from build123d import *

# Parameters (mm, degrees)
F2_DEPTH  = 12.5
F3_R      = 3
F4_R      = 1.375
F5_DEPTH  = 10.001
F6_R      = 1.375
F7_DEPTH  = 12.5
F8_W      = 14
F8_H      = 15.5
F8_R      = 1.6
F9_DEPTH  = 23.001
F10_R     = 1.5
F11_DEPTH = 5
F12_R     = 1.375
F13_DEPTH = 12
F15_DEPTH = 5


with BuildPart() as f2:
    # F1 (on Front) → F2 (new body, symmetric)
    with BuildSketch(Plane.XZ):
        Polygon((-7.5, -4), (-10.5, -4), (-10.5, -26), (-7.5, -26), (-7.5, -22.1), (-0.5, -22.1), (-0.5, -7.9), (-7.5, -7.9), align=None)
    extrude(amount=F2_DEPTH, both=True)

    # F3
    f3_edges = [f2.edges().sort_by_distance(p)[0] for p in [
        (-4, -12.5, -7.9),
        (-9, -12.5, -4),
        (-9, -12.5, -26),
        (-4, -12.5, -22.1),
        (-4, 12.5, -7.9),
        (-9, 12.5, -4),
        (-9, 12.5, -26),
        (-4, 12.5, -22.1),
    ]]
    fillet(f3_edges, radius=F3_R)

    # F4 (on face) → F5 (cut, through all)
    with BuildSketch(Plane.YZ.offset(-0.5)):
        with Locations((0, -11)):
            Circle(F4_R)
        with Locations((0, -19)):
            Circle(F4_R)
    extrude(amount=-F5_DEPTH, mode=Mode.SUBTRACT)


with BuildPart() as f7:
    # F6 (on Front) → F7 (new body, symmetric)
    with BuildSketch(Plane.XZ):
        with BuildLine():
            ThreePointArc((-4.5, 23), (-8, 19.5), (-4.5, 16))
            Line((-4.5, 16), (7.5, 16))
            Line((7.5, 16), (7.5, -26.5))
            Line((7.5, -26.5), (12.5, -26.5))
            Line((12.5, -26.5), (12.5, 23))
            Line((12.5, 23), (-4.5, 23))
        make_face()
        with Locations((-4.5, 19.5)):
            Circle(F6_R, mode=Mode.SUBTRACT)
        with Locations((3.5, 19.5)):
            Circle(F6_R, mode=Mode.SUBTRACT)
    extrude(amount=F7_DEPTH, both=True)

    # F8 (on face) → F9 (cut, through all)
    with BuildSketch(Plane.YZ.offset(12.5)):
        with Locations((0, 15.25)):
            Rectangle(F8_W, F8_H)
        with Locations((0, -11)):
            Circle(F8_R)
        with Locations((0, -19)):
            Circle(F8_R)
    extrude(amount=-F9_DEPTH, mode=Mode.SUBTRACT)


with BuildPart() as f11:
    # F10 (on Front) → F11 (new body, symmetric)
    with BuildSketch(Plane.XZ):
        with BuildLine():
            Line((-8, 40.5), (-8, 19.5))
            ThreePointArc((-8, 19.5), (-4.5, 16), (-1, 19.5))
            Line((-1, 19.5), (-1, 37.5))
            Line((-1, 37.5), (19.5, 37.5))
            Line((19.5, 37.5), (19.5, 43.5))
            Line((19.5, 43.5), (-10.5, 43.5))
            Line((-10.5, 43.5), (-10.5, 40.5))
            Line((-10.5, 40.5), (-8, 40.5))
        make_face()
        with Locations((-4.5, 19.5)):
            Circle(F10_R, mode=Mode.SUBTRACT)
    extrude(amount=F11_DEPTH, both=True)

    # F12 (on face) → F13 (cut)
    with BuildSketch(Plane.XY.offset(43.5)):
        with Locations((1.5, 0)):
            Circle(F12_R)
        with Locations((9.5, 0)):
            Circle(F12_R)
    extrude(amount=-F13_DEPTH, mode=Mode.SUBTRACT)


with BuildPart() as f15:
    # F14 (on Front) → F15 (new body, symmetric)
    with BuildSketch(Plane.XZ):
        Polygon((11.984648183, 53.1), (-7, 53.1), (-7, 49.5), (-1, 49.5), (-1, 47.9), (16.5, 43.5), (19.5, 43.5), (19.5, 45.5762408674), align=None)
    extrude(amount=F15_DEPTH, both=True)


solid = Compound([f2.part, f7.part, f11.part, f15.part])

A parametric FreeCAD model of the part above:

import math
import FreeCAD as App
import Part
import Sketcher

V = App.Vector
Q = App.Units.Quantity


def edges_at(feature, points):
    """Names of the edges that pass closest to the given points."""
    edges = feature.Shape.Edges
    near = lambda p: min(range(len(edges)), key=lambda i: edges[i].distToShape(Part.Vertex(*p))[0])
    return sorted({f"Edge{near(p) + 1}" for p in points})


def add_polygon(sketch, points):
    """Adds a closed chain of lines whose ends are joined by coincident constraints."""
    first, n = sketch.GeometryCount, len(points)
    for a, b in zip(points, points[1:] + points[:1]):
        sketch.addGeometry(Part.LineSegment(App.Vector(*a, 0), App.Vector(*b, 0)), False)
    for i in range(n):
        sketch.addConstraint(Sketcher.Constraint("Coincident", first + i, 2, first + (i + 1) % n, 1))

doc = App.newDocument("Part")
body = doc.addObject("PartDesign::Body", "Body")

sketch1 = body.newObject("Sketcher::SketchObject", "Sketch")
sketch1.AttachmentSupport = (doc.getObject("XZ_Plane"), [""])
sketch1.MapMode = "FlatFace"
add_polygon(sketch1, [(-7.5, -4), (-10.5, -4), (-10.5, -26), (-7.5, -26), (-7.5, -22.1), (-0.5, -22.1), (-0.5, -7.9), (-7.5, -7.9)])
sketch1.addConstraint([
    Sketcher.Constraint("Horizontal", 0),
    Sketcher.Constraint("Vertical", 1),
    Sketcher.Constraint("Horizontal", 2),
    Sketcher.Constraint("Vertical", 3),
    Sketcher.Constraint("Horizontal", 4),
    Sketcher.Constraint("Vertical", 5),
    Sketcher.Constraint("Horizontal", 6),
    Sketcher.Constraint("Vertical", 7),
    Sketcher.Constraint("Vertical", 3, 2, 6, 2),
    Sketcher.Constraint("Equal", 3, 7),
    Sketcher.Constraint("DistanceX", 0, 2, 0, 1, Q("3 mm")),
    Sketcher.Constraint("DistanceX", 4, 1, 4, 2, Q("7 mm")),
    Sketcher.Constraint("DistanceY", 1, 2, 1, 1, Q("22 mm")),
    Sketcher.Constraint("DistanceY", 3, 1, 3, 2, Q("3.9 mm")),
    Sketcher.Constraint("DistanceY", 0, 2, -1, 1, Q("4 mm")),
    Sketcher.Constraint("DistanceX", 0, 2, -1, 1, Q("10.5 mm")),
])
pad1 = body.newObject("PartDesign::Pad", "Pad")
pad1.Profile = sketch1
pad1.Length = 25
pad1.Midplane = True
doc.recompute()

fillet = body.newObject("PartDesign::Fillet", "Fillet")
fillet.Base = (pad1, edges_at(pad1, [
    (-4, -12.5, -7.9),
    (-9, -12.5, -4),
    (-9, -12.5, -26),
    (-4, -12.5, -22.1),
    (-4, 12.5, -7.9),
    (-9, 12.5, -4),
    (-9, 12.5, -26),
    (-4, 12.5, -22.1),
]))
fillet.Radius = 3

sketch2 = body.newObject("Sketcher::SketchObject", "Sketch001")
sketch2.AttachmentSupport = (doc.getObject("YZ_Plane"), [""])
sketch2.MapMode = "FlatFace"
sketch2.AttachmentOffset = App.Placement(V(0, 0, -0.5), App.Rotation())
sketch2.addGeometry([
    Part.Circle(V(0, -11, 0), V(0, 0, 1), 1.4),
    Part.Circle(V(0, -19, 0), V(0, 0, 1), 1.4),
], False)
sketch2.addConstraint([
    Sketcher.Constraint("Equal", 0, 1),
    Sketcher.Constraint("PointOnObject", 0, 3, -2),
    Sketcher.Constraint("PointOnObject", 1, 3, -2),
    Sketcher.Constraint("Diameter", 0, Q("2.75 mm")),
    Sketcher.Constraint("DistanceY", 0, 3, -1, 1, Q("11 mm")),
    Sketcher.Constraint("DistanceY", 1, 3, -1, 1, Q("19 mm")),
])
pocket1 = body.newObject("PartDesign::Pocket", "Pocket")
pocket1.Profile = sketch2
pocket1.Type = "ThroughAll"
body2 = doc.addObject("PartDesign::Body", "Body001")

sketch3 = body2.newObject("Sketcher::SketchObject", "Sketch002")
sketch3.AttachmentSupport = (doc.getObject("XZ_Plane001"), [""])
sketch3.MapMode = "FlatFace"
sketch3.addGeometry([
    Part.ArcOfCircle(Part.Circle(V(-4.5, 19.5, 0), V(0, 0, 1), 3.5), math.radians(90), math.radians(270)),
    Part.LineSegment(V(-4.5, 16, 0), V(7.5, 16, 0)),
    Part.LineSegment(V(7.5, 16, 0), V(7.5, -26.5, 0)),
    Part.LineSegment(V(7.5, -26.5, 0), V(12.5, -26.5, 0)),
    Part.LineSegment(V(12.5, -26.5, 0), V(12.5, 23, 0)),
    Part.LineSegment(V(12.5, 23, 0), V(-4.5, 23, 0)),
    Part.Circle(V(-4.5, 19.5, 0), V(0, 0, 1), 1.4),
    Part.Circle(V(3.5, 19.5, 0), V(0, 0, 1), 1.4),
], False)
sketch3.addConstraint([
    Sketcher.Constraint("Tangent", 0, 2, 1, 1),
    Sketcher.Constraint("Coincident", 1, 2, 2, 1),
    Sketcher.Constraint("Coincident", 2, 2, 3, 1),
    Sketcher.Constraint("Coincident", 3, 2, 4, 1),
    Sketcher.Constraint("Coincident", 4, 2, 5, 1),
    Sketcher.Constraint("Tangent", 5, 2, 0, 1),
    Sketcher.Constraint("Horizontal", 1),
    Sketcher.Constraint("Vertical", 2),
    Sketcher.Constraint("Horizontal", 3),
    Sketcher.Constraint("Vertical", 4),
    Sketcher.Constraint("Horizontal", 5),
    Sketcher.Constraint("Coincident", 6, 3, 0, 3),
    Sketcher.Constraint("Equal", 6, 7),
    Sketcher.Constraint("Horizontal", 6, 3, 7, 3),
    Sketcher.Constraint("Radius", 0, Q("3.5 mm")),
    Sketcher.Constraint("Diameter", 6, Q("2.75 mm")),
    Sketcher.Constraint("DistanceX", 1, 1, 1, 2, Q("12 mm")),
    Sketcher.Constraint("DistanceX", 3, 1, 3, 2, Q("5 mm")),
    Sketcher.Constraint("DistanceY", 2, 2, 2, 1, Q("42.5 mm")),
    Sketcher.Constraint("DistanceY", -1, 1, 0, 2, Q("16 mm")),
    Sketcher.Constraint("DistanceX", 0, 3, 7, 3, Q("8 mm")),
    Sketcher.Constraint("DistanceX", 0, 3, -1, 1, Q("4.5 mm")),
])
pad2 = body2.newObject("PartDesign::Pad", "Pad001")
pad2.Profile = sketch3
pad2.Length = 25
pad2.Midplane = True

sketch4 = body2.newObject("Sketcher::SketchObject", "Sketch003")
sketch4.AttachmentSupport = (doc.getObject("YZ_Plane001"), [""])
sketch4.MapMode = "FlatFace"
sketch4.AttachmentOffset = App.Placement(V(0, 0, 12.5), App.Rotation())
add_polygon(sketch4, [(-7, 23), (-7, 7.5), (7, 7.5), (7, 23)])
sketch4.addGeometry(Part.Circle(V(0, -11, 0), V(0, 0, 1), 1.6), False)
sketch4.addGeometry(Part.Circle(V(0, -19, 0), V(0, 0, 1), 1.6), False)
sketch4.addConstraint([
    Sketcher.Constraint("Vertical", 0),
    Sketcher.Constraint("Horizontal", 1),
    Sketcher.Constraint("Vertical", 2),
    Sketcher.Constraint("Horizontal", 3),
    Sketcher.Constraint("Equal", 4, 5),
    Sketcher.Constraint("PointOnObject", 4, 3, -2),
    Sketcher.Constraint("PointOnObject", 5, 3, -2),
    Sketcher.Constraint("Diameter", 4, Q("3.2 mm")),
    Sketcher.Constraint("DistanceX", 1, 1, 1, 2, Q("14 mm")),
    Sketcher.Constraint("DistanceY", 0, 2, 0, 1, Q("15.5 mm")),
    Sketcher.Constraint("DistanceY", 4, 3, -1, 1, Q("11 mm")),
    Sketcher.Constraint("DistanceY", 5, 3, -1, 1, Q("19 mm")),
    Sketcher.Constraint("DistanceX", 0, 2, -1, 1, Q("7 mm")),
    Sketcher.Constraint("DistanceY", -1, 1, 2, 2, Q("23 mm")),
])
pocket2 = body2.newObject("PartDesign::Pocket", "Pocket001")
pocket2.Profile = sketch4
pocket2.Type = "ThroughAll"
body3 = doc.addObject("PartDesign::Body", "Body002")

sketch5 = body3.newObject("Sketcher::SketchObject", "Sketch004")
sketch5.AttachmentSupport = (doc.getObject("XZ_Plane002"), [""])
sketch5.MapMode = "FlatFace"
sketch5.addGeometry([
    Part.LineSegment(V(-8, 40.5, 0), V(-8, 19.5, 0)),
    Part.ArcOfCircle(Part.Circle(V(-4.5, 19.5, 0), V(0, 0, 1), 3.5), math.radians(180), math.radians(360)),
    Part.LineSegment(V(-1, 19.5, 0), V(-1, 37.5, 0)),
    Part.LineSegment(V(-1, 37.5, 0), V(19.5, 37.5, 0)),
    Part.LineSegment(V(19.5, 37.5, 0), V(19.5, 43.5, 0)),
    Part.LineSegment(V(19.5, 43.5, 0), V(-10.5, 43.5, 0)),
    Part.LineSegment(V(-10.5, 43.5, 0), V(-10.5, 40.5, 0)),
    Part.LineSegment(V(-10.5, 40.5, 0), V(-8, 40.5, 0)),
    Part.Circle(V(-4.5, 19.5, 0), V(0, 0, 1), 1.5),
], False)
sketch5.addConstraint([
    Sketcher.Constraint("Tangent", 0, 2, 1, 1),
    Sketcher.Constraint("Tangent", 1, 2, 2, 1),
    Sketcher.Constraint("Coincident", 2, 2, 3, 1),
    Sketcher.Constraint("Coincident", 3, 2, 4, 1),
    Sketcher.Constraint("Coincident", 4, 2, 5, 1),
    Sketcher.Constraint("Coincident", 5, 2, 6, 1),
    Sketcher.Constraint("Coincident", 6, 2, 7, 1),
    Sketcher.Constraint("Coincident", 7, 2, 0, 1),
    Sketcher.Constraint("Vertical", 0),
    Sketcher.Constraint("Vertical", 2),
    Sketcher.Constraint("Horizontal", 3),
    Sketcher.Constraint("Vertical", 4),
    Sketcher.Constraint("Horizontal", 5),
    Sketcher.Constraint("Vertical", 6),
    Sketcher.Constraint("Horizontal", 7),
    Sketcher.Constraint("Coincident", 8, 3, 1, 3),
    Sketcher.Constraint("Diameter", 8, Q("3 mm")),
    Sketcher.Constraint("Radius", 1, Q("3.5 mm")),
    Sketcher.Constraint("DistanceX", 5, 2, 5, 1, Q("30 mm")),
    Sketcher.Constraint("DistanceY", 0, 2, 0, 1, Q("21 mm")),
    Sketcher.Constraint("DistanceY", 2, 1, 2, 2, Q("18 mm")),
    Sketcher.Constraint("DistanceY", 4, 1, 4, 2, Q("6 mm")),
    Sketcher.Constraint("DistanceX", 3, 1, 3, 2, Q("20.5 mm")),
    Sketcher.Constraint("DistanceX", 0, 2, -1, 1, Q("8 mm")),
    Sketcher.Constraint("DistanceY", -1, 1, 1, 3, Q("19.5 mm")),
])
pad3 = body3.newObject("PartDesign::Pad", "Pad002")
pad3.Profile = sketch5
pad3.Length = 10
pad3.Midplane = True

sketch6 = body3.newObject("Sketcher::SketchObject", "Sketch005")
sketch6.AttachmentSupport = (doc.getObject("XY_Plane002"), [""])
sketch6.MapMode = "FlatFace"
sketch6.AttachmentOffset = App.Placement(V(0, 0, 43.5), App.Rotation())
sketch6.addGeometry([
    Part.Circle(V(1.5, 0, 0), V(0, 0, 1), 1.4),
    Part.Circle(V(9.5, 0, 0), V(0, 0, 1), 1.4),
], False)
sketch6.addConstraint([
    Sketcher.Constraint("Equal", 0, 1),
    Sketcher.Constraint("PointOnObject", 0, 3, -1),
    Sketcher.Constraint("PointOnObject", 1, 3, -1),
    Sketcher.Constraint("Diameter", 0, Q("2.75 mm")),
    Sketcher.Constraint("DistanceX", 0, 3, 1, 3, Q("8 mm")),
    Sketcher.Constraint("DistanceX", -1, 1, 0, 3, Q("1.5 mm")),
])
pocket3 = body3.newObject("PartDesign::Pocket", "Pocket002")
pocket3.Profile = sketch6
pocket3.Length = 12
body4 = doc.addObject("PartDesign::Body", "Body003")

sketch7 = body4.newObject("Sketcher::SketchObject", "Sketch006")
sketch7.AttachmentSupport = (doc.getObject("XZ_Plane003"), [""])
sketch7.MapMode = "FlatFace"
add_polygon(sketch7, [(12, 53.1), (-7, 53.1), (-7, 49.5), (-1, 49.5), (-1, 47.9), (16.5, 43.5), (19.5, 43.5), (19.5, 45.6)])
sketch7.addConstraint([
    Sketcher.Constraint("Horizontal", 0),
    Sketcher.Constraint("Vertical", 1),
    Sketcher.Constraint("Horizontal", 2),
    Sketcher.Constraint("Vertical", 3),
    Sketcher.Constraint("Horizontal", 5),
    Sketcher.Constraint("Vertical", 6),
    Sketcher.Constraint("DistanceX", 2, 1, 2, 2, Q("6 mm")),
    Sketcher.Constraint("DistanceX", 5, 1, 5, 2, Q("3 mm")),
    Sketcher.Constraint("DistanceY", 1, 2, 1, 1, Q("3.6 mm")),
    Sketcher.Constraint("DistanceY", 3, 2, 3, 1, Q("1.6 mm")),
    Sketcher.Constraint("DistanceX", 0, 2, -1, 1, Q("7 mm")),
    Sketcher.Constraint("DistanceY", 4, 2, 2, 2, Q("6 mm")),
    Sketcher.Constraint("DistanceY", -1, 1, 0, 2, Q("53.1 mm")),
    Sketcher.Constraint("DistanceX", -1, 1, 4, 2, Q("16.5 mm")),
    Sketcher.Constraint("DistanceX", 0, 2, 0, 1, Q("18.984648 mm")),
    Sketcher.Constraint("DistanceY", 6, 1, 6, 2, Q("2.076241 mm")),
])
pad4 = body4.newObject("PartDesign::Pad", "Pad003")
pad4.Profile = sketch7
pad4.Length = 10
pad4.Midplane = True

doc.recompute()
